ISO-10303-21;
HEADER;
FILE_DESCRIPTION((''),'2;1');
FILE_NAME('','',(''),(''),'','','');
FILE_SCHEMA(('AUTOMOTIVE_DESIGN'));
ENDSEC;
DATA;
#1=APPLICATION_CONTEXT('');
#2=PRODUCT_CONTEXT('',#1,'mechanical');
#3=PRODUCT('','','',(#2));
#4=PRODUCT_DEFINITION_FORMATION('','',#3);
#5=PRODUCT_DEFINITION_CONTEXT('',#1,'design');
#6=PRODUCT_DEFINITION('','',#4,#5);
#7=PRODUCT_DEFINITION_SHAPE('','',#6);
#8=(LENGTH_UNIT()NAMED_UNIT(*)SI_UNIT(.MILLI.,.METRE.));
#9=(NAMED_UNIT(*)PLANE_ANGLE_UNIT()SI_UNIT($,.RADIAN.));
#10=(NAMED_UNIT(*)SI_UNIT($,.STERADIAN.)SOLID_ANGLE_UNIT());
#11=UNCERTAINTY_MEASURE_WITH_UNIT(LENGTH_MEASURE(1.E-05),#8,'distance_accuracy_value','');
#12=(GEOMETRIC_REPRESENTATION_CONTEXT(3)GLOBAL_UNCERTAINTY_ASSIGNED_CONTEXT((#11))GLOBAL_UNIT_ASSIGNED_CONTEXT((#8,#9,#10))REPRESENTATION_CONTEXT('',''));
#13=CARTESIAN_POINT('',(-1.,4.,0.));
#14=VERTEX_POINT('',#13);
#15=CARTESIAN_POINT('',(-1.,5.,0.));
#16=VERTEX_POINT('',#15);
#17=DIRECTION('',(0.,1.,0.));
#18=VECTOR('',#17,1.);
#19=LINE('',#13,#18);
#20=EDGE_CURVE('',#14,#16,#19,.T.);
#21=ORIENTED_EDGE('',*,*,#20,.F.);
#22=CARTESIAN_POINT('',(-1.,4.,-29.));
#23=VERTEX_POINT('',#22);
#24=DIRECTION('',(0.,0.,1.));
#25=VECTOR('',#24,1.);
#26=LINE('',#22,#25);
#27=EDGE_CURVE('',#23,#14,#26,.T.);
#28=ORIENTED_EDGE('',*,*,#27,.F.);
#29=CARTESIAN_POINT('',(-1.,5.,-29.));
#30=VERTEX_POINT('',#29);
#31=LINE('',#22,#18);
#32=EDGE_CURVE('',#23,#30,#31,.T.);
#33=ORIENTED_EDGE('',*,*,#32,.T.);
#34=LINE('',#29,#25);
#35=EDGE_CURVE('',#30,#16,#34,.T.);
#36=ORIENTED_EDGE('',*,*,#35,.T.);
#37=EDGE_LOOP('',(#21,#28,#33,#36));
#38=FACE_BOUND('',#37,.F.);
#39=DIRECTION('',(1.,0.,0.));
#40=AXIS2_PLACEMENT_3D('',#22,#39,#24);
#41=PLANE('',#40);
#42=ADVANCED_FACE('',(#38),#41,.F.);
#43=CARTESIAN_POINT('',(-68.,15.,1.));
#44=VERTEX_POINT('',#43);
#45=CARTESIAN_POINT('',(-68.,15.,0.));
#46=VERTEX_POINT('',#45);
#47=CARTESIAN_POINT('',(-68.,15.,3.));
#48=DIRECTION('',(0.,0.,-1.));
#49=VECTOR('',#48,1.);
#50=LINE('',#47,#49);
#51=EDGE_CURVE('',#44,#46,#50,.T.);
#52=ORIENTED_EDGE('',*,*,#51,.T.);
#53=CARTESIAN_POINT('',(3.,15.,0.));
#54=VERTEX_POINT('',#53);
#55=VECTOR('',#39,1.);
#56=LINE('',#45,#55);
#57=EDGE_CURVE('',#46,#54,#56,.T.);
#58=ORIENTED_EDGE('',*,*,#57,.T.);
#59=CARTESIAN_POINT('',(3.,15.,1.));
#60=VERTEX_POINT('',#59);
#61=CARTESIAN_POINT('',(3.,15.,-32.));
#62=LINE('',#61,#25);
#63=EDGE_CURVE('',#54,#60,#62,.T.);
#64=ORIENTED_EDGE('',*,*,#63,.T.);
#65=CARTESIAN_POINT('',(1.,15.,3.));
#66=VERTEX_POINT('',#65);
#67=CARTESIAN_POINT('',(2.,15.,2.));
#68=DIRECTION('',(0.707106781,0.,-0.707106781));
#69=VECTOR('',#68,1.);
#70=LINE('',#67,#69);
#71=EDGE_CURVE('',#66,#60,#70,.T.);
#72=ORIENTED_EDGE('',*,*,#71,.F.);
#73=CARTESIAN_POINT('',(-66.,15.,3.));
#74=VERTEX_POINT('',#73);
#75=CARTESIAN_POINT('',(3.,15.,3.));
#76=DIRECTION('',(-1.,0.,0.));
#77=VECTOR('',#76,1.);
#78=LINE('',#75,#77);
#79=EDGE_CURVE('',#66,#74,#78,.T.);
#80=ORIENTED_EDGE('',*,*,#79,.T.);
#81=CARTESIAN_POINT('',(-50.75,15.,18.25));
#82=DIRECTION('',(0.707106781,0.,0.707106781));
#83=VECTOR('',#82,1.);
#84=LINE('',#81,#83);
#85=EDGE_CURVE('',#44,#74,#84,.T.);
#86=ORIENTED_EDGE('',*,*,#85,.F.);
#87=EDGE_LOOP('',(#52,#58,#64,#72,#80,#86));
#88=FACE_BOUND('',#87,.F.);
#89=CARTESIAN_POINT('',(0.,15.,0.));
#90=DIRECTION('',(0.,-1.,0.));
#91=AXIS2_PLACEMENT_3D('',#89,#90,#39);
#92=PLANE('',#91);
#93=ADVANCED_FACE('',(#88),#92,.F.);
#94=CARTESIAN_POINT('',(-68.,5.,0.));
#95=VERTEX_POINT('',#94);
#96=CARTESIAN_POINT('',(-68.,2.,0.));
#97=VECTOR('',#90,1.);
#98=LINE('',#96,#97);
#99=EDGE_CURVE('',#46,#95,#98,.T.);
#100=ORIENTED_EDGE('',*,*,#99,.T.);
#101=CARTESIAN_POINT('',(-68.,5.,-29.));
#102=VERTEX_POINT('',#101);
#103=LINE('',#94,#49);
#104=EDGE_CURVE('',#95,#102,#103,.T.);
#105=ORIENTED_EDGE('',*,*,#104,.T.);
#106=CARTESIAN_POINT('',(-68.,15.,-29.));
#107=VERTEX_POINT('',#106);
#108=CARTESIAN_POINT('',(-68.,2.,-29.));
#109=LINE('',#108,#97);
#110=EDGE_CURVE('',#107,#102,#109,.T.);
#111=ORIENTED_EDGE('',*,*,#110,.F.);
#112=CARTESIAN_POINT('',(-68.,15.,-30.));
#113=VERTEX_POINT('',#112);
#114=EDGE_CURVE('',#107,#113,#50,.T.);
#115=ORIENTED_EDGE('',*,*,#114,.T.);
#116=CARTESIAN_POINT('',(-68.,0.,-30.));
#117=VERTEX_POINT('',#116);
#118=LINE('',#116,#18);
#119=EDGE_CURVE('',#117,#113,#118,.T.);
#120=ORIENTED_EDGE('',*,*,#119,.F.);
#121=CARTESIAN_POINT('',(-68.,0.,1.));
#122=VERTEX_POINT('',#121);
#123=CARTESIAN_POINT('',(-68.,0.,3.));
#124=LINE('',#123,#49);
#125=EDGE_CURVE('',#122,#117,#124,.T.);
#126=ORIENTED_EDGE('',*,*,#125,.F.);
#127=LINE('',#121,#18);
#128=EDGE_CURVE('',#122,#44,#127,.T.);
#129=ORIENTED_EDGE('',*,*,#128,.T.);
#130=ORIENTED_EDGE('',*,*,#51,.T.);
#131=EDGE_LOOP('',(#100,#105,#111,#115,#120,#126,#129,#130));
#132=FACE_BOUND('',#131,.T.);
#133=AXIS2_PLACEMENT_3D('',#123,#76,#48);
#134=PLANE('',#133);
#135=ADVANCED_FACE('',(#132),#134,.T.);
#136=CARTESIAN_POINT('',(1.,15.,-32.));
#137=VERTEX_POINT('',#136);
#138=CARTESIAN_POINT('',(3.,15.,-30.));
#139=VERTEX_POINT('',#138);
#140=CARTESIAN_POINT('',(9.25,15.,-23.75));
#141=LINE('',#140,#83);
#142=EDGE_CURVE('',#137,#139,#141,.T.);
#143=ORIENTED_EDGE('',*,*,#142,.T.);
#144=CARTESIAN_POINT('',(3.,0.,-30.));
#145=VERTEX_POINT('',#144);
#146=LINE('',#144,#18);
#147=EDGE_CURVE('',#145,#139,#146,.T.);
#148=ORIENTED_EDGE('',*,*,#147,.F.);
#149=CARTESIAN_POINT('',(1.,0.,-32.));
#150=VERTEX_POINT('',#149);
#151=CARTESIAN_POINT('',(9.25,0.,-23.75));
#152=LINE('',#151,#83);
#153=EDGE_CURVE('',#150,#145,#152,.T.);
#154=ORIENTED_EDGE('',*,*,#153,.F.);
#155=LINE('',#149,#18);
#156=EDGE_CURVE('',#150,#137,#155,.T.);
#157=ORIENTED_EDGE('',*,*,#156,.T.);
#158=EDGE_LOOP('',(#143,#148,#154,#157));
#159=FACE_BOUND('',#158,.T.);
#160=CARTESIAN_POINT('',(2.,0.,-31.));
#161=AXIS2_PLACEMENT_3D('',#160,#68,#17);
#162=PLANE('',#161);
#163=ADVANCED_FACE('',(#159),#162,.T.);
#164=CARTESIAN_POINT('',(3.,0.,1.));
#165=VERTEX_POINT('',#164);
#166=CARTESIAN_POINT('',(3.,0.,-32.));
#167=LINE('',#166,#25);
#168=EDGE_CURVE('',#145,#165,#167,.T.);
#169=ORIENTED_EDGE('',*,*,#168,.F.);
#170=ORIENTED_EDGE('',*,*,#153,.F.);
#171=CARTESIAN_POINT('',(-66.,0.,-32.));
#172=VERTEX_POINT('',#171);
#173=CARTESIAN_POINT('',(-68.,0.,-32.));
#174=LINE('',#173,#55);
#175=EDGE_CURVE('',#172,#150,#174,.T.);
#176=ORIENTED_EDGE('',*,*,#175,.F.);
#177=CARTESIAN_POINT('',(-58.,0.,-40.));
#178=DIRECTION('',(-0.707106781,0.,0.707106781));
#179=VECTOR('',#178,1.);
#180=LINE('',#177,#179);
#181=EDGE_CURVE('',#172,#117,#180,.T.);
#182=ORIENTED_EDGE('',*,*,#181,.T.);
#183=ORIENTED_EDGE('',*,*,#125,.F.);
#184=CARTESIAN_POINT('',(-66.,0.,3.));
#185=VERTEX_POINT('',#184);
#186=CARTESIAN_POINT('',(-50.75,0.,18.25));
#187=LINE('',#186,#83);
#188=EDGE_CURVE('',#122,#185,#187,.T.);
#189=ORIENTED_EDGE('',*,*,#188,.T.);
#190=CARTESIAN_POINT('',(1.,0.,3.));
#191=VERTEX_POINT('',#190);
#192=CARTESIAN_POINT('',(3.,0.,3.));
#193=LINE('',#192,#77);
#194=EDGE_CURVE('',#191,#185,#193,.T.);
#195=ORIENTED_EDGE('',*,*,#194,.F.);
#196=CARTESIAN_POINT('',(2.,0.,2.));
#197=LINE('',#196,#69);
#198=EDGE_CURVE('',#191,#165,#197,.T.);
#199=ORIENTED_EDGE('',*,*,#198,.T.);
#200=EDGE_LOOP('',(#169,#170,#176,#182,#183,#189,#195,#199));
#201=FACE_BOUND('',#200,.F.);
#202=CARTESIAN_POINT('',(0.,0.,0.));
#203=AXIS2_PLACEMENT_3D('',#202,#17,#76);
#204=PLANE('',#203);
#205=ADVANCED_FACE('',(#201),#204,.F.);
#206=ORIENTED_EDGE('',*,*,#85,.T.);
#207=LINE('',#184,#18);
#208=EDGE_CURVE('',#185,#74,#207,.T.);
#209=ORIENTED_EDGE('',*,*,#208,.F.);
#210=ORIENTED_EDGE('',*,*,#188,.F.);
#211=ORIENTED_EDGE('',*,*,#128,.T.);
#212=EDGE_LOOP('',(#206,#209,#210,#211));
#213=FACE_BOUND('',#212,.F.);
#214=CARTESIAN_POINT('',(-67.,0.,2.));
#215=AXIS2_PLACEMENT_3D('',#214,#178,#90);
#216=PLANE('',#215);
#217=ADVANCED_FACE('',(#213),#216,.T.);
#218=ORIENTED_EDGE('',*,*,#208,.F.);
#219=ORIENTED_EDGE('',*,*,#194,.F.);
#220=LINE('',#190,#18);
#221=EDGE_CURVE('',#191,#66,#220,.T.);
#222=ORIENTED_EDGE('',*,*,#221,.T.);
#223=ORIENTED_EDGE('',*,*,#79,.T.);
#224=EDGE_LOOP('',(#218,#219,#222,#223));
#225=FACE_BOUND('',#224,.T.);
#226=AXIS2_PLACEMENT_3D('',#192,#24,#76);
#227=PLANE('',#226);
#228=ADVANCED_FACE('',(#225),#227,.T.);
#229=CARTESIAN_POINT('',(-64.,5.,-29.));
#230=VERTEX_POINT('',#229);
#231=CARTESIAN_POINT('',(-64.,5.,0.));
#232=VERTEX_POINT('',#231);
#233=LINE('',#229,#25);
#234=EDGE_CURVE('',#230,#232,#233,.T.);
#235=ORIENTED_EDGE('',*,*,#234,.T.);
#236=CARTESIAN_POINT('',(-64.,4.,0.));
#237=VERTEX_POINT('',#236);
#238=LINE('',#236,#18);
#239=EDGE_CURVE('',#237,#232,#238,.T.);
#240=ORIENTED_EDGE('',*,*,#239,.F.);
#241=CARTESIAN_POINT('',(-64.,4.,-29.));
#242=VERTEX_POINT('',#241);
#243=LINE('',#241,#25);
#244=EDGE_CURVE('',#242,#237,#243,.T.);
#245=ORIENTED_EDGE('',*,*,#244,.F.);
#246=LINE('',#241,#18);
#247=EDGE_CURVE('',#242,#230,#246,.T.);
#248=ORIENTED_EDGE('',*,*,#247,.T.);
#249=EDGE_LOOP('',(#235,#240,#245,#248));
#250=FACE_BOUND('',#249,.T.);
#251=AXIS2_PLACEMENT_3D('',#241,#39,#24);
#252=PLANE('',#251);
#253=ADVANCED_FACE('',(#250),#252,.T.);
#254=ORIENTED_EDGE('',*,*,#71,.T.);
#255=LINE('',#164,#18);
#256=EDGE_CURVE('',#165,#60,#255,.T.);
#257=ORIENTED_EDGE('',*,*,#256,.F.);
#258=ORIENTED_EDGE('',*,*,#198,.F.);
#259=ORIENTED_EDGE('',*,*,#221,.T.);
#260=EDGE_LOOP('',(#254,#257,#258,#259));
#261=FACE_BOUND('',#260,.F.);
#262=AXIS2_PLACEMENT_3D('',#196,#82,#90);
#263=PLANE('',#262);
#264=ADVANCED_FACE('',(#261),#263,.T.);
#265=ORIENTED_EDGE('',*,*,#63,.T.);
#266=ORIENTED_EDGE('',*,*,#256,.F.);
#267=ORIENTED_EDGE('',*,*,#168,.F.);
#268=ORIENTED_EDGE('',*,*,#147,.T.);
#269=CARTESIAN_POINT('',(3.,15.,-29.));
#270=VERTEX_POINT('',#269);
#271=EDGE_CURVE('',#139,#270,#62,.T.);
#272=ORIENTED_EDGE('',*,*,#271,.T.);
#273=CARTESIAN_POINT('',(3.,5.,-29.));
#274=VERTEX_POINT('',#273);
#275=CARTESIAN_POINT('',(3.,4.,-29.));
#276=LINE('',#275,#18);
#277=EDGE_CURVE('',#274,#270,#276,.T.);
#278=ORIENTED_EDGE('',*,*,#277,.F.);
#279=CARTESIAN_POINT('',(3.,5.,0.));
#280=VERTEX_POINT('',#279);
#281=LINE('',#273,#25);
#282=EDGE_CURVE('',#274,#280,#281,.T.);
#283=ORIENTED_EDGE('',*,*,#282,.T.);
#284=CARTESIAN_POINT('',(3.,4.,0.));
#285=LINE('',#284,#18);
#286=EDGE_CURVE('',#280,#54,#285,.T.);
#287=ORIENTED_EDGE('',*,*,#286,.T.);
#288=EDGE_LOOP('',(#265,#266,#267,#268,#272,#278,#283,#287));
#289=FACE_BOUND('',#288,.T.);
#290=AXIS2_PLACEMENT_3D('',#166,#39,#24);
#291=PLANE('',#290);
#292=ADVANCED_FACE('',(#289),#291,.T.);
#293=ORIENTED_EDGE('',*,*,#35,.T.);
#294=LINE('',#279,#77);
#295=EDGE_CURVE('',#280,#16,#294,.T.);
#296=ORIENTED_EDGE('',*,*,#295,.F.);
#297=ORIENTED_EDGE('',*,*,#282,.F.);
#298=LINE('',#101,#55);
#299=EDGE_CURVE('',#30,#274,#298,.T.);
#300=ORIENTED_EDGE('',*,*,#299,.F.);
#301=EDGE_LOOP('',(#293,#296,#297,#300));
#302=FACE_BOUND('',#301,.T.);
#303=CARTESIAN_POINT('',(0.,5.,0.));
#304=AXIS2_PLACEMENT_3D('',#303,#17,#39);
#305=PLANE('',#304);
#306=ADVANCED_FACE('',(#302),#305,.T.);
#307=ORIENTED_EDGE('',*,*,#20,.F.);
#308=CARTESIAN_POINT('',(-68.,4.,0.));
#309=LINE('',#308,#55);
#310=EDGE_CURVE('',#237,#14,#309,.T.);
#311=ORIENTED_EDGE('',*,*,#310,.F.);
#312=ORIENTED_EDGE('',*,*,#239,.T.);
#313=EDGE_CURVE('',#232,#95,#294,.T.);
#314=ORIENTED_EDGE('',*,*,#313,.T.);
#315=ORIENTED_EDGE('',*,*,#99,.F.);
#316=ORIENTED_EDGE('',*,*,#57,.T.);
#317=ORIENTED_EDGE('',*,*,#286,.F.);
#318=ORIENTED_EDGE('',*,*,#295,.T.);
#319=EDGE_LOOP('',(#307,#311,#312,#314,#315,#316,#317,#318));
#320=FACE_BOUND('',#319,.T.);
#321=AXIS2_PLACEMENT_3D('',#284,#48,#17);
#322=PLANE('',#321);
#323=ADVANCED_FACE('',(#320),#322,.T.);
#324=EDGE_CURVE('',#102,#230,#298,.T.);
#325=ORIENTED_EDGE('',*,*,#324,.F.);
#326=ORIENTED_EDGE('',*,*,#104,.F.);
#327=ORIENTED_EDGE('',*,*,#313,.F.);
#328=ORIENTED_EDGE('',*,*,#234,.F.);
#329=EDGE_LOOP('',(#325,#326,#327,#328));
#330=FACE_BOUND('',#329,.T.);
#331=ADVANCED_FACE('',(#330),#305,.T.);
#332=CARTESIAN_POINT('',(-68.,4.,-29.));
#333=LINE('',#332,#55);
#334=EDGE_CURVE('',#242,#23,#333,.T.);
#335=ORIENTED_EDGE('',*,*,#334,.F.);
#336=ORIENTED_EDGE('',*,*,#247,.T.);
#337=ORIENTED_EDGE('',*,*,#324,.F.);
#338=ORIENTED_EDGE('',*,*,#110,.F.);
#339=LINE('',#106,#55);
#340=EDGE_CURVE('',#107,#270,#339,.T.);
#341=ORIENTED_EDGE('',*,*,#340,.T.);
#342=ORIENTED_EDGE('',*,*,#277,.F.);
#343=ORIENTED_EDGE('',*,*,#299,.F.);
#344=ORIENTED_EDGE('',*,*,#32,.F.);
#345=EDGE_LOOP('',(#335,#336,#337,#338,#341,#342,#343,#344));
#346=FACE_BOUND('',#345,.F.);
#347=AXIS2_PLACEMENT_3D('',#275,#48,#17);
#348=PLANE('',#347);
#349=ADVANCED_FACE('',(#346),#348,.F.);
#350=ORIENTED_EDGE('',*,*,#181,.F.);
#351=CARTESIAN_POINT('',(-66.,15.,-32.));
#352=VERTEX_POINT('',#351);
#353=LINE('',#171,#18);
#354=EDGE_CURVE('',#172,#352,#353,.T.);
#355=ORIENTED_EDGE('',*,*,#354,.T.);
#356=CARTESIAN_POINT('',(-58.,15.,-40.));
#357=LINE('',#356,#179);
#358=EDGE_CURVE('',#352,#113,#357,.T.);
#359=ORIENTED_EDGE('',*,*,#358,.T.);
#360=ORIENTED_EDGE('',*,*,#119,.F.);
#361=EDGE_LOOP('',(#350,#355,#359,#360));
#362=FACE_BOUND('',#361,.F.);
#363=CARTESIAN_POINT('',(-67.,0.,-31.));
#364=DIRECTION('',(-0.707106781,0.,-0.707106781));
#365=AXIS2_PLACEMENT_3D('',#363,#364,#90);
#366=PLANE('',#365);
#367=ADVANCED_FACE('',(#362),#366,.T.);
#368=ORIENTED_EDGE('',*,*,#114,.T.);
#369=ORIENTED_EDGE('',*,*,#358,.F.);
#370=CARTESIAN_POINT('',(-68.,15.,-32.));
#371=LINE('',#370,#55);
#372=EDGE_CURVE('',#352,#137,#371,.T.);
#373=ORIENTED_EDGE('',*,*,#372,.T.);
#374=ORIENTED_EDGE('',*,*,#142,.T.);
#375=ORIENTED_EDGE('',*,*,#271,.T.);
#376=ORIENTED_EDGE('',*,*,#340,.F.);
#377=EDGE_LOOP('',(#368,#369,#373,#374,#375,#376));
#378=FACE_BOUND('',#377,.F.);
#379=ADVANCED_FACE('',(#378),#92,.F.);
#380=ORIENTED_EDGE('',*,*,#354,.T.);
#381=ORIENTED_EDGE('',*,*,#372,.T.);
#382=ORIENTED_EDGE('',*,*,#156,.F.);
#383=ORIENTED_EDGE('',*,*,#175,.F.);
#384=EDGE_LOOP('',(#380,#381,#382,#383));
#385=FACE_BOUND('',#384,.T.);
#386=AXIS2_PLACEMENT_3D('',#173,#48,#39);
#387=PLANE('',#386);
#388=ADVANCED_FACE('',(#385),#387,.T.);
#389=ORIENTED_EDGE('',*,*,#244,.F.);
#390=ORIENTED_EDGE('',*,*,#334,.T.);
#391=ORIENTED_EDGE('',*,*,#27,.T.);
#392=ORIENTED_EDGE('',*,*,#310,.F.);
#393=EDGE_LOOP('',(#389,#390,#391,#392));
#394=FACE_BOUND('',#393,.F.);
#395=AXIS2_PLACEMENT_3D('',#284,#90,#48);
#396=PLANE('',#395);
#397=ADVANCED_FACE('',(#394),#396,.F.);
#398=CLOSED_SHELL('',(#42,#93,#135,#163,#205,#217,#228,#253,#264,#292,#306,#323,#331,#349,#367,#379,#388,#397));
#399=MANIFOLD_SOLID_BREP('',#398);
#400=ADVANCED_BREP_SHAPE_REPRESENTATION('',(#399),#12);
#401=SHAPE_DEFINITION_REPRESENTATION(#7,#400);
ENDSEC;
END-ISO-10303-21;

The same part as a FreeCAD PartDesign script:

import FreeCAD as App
import Part
import Sketcher

V = App.Vector


def edges_at(feature, points):
    """Names of the edges that pass closest to the given points."""
    edges = feature.Shape.Edges
    near = lambda p: min(range(len(edges)), key=lambda i: edges[i].distToShape(Part.Vertex(*p))[0])
    return sorted({f"Edge{near(p) + 1}" for p in points})

doc = App.newDocument("Part")
body = doc.addObject("PartDesign::Body", "Body")

# Sketch on XZ plane
sketch1 = body.newObject("Sketcher::SketchObject", "Sketch")
sketch1.AttachmentSupport = (doc.getObject("XZ_Plane"), [""])
sketch1.MapMode = "FlatFace"
sketch1.addGeometry(Part.LineSegment(V(-65, 0, 0), V(0, 0, 0)), False)
sketch1.addGeometry(Part.LineSegment(V(0, 0, 0), V(0, -29, 0)), False)
sketch1.addGeometry(Part.LineSegment(V(0, -29, 0), V(-65, -29, 0)), False)
sketch1.addGeometry(Part.LineSegment(V(-65, -29, 0), V(-65, 0, 0)), False)
sketch1.addConstraint(Sketcher.Constraint("Coincident", 0, 2, 1, 1))
sketch1.addConstraint(Sketcher.Constraint("Coincident", 1, 2, 2, 1))
sketch1.addConstraint(Sketcher.Constraint("Coincident", 2, 2, 3, 1))
sketch1.addConstraint(Sketcher.Constraint("Coincident", 3, 2, 0, 1))
sketch1.addConstraint(Sketcher.Constraint("Horizontal", 0))
sketch1.addConstraint(Sketcher.Constraint("Vertical", 1))
sketch1.addConstraint(Sketcher.Constraint("Horizontal", 2))
sketch1.addConstraint(Sketcher.Constraint("Vertical", 3))
sketch1.addConstraint(Sketcher.Constraint("Coincident", 0, 2, -1, 1))
sketch1.addConstraint(Sketcher.Constraint("DistanceX", 0, 1, 0, 2, 65.0))
sketch1.addConstraint(Sketcher.Constraint("DistanceY", 1, 2, 1, 1, 29.0))
pad1 = body.newObject("PartDesign::Pad", "Pad")
pad1.Profile = sketch1
pad1.Length = 4
pad1.Reversed = True

# Sketch on XZ plane
sketch2 = body.newObject("Sketcher::SketchObject", "Sketch001")
sketch2.AttachmentSupport = (doc.getObject("XZ_Plane"), [""])
sketch2.MapMode = "FlatFace"
sketch2.addGeometry(Part.LineSegment(V(-68, -32, 0), V(3, -32, 0)), False)
sketch2.addGeometry(Part.LineSegment(V(3, -32, 0), V(3, 3, 0)), False)
sketch2.addGeometry(Part.LineSegment(V(3, 3, 0), V(-68, 3, 0)), False)
sketch2.addGeometry(Part.LineSegment(V(-68, 3, 0), V(-68, -32, 0)), False)
sketch2.addGeometry(Part.LineSegment(V(-65, 0, 0), V(0, 0, 0)), False)
sketch2.addGeometry(Part.LineSegment(V(0, 0, 0), V(0, -29, 0)), False)
sketch2.addGeometry(Part.LineSegment(V(0, -29, 0), V(-65, -29, 0)), False)
sketch2.addGeometry(Part.LineSegment(V(-65, -29, 0), V(-65, 0, 0)), False)
sketch2.addConstraint(Sketcher.Constraint("Coincident", 0, 2, 1, 1))
sketch2.addConstraint(Sketcher.Constraint("Coincident", 1, 2, 2, 1))
sketch2.addConstraint(Sketcher.Constraint("Coincident", 2, 2, 3, 1))
sketch2.addConstraint(Sketcher.Constraint("Coincident", 3, 2, 0, 1))
sketch2.addConstraint(Sketcher.Constraint("Coincident", 4, 2, 5, 1))
sketch2.addConstraint(Sketcher.Constraint("Coincident", 5, 2, 6, 1))
sketch2.addConstraint(Sketcher.Constraint("Coincident", 6, 2, 7, 1))
sketch2.addConstraint(Sketcher.Constraint("Coincident", 7, 2, 4, 1))
sketch2.addConstraint(Sketcher.Constraint("Horizontal", 0))
sketch2.addConstraint(Sketcher.Constraint("Vertical", 1))
sketch2.addConstraint(Sketcher.Constraint("Horizontal", 2))
sketch2.addConstraint(Sketcher.Constraint("Vertical", 3))
sketch2.addConstraint(Sketcher.Constraint("Horizontal", 4))
sketch2.addConstraint(Sketcher.Constraint("Vertical", 5))
sketch2.addConstraint(Sketcher.Constraint("Horizontal", 6))
sketch2.addConstraint(Sketcher.Constraint("Vertical", 7))
sketch2.addConstraint(Sketcher.Constraint("Coincident", 4, 2, -1, 1))
sketch2.addConstraint(Sketcher.Constraint("DistanceX", -1, 1, 0, 2, 3.0))
sketch2.addConstraint(Sketcher.Constraint("DistanceY", -1, 1, 1, 2, 3.0))
sketch2.addConstraint(Sketcher.Constraint("DistanceY", 0, 2, 5, 2, 3.0))
sketch2.addConstraint(Sketcher.Constraint("DistanceX", 3, 2, 6, 2, 3.0))
sketch2.addConstraint(Sketcher.Constraint("DistanceX", 0, 1, 0, 2, 71.0))
sketch2.addConstraint(Sketcher.Constraint("DistanceY", 1, 1, 1, 2, 35.0))
pad2 = body.newObject("PartDesign::Pad", "Pad001")
pad2.Profile = sketch2
pad2.Length = 15
pad2.Reversed = True

# Sketch on YZ plane
sketch3 = body.newObject("Sketcher::SketchObject", "Sketch002")
sketch3.AttachmentSupport = (doc.getObject("YZ_Plane"), [""])
sketch3.MapMode = "FlatFace"
sketch3.AttachmentOffset = App.Placement(V(0, 0, 3), App.Rotation())
sketch3.addGeometry(Part.LineSegment(V(15, 0, 0), V(4, 0, 0)), False)
sketch3.addGeometry(Part.LineSegment(V(4, 0, 0), V(4, -29, 0)), False)
sketch3.addGeometry(Part.LineSegment(V(4, -29, 0), V(15, -29, 0)), False)
sketch3.addGeometry(Part.LineSegment(V(15, -29, 0), V(15, 0, 0)), False)
sketch3.addConstraint(Sketcher.Constraint("Coincident", 0, 2, 1, 1))
sketch3.addConstraint(Sketcher.Constraint("Coincident", 1, 2, 2, 1))
sketch3.addConstraint(Sketcher.Constraint("Coincident", 2, 2, 3, 1))
sketch3.addConstraint(Sketcher.Constraint("Coincident", 3, 2, 0, 1))
sketch3.addConstraint(Sketcher.Constraint("Horizontal", 0))
sketch3.addConstraint(Sketcher.Constraint("Vertical", 1))
sketch3.addConstraint(Sketcher.Constraint("Horizontal", 2))
sketch3.addConstraint(Sketcher.Constraint("Vertical", 3))
sketch3.addConstraint(Sketcher.Constraint("PointOnObject", 0, 2, -1))
sketch3.addConstraint(Sketcher.Constraint("DistanceX", 0, 2, 0, 1, 11.0))
sketch3.addConstraint(Sketcher.Constraint("DistanceY", 1, 2, 1, 1, 29.0))
sketch3.addConstraint(Sketcher.Constraint("DistanceX", -1, 1, 0, 2, 4.0))
pocket1 = body.newObject("PartDesign::Pocket", "Pocket")
pocket1.Profile = sketch3
pocket1.Length = 72.15
doc.recompute()

chamfer = body.newObject("PartDesign::Chamfer", "Chamfer")
chamfer.Base = (pocket1, edges_at(pocket1, [
    (3, 7.5, 3),
    (-68, 7.5, 3),
    (-68, 7.5, -32),
    (3, 7.5, -32),
]))
chamfer.Size = 2

# Sketch on XZ plane
sketch4 = body.newObject("Sketcher::SketchObject", "Sketch003")
sketch4.AttachmentSupport = (doc.getObject("XZ_Plane"), [""])
sketch4.MapMode = "FlatFace"
sketch4.AttachmentOffset = App.Placement(V(0, 0, -4), App.Rotation())
sketch4.addGeometry(Part.LineSegment(V(-68, -29, 0), V(-68, 0, 0)), False)
sketch4.addGeometry(Part.LineSegment(V(-68, 0, 0), V(-64, 0, 0)), False)
sketch4.addGeometry(Part.LineSegment(V(-64, 0, 0), V(-64, -29, 0)), False)
sketch4.addGeometry(Part.LineSegment(V(-64, -29, 0), V(-68, -29, 0)), False)
sketch4.addGeometry(Part.LineSegment(V(-1, -29, 0), V(-1, 0, 0)), False)
sketch4.addGeometry(Part.LineSegment(V(-1, 0, 0), V(3, 0, 0)), False)
sketch4.addGeometry(Part.LineSegment(V(3, 0, 0), V(3, -29, 0)), False)
sketch4.addGeometry(Part.LineSegment(V(3, -29, 0), V(-1, -29, 0)), False)
sketch4.addConstraint(Sketcher.Constraint("Coincident", 0, 2, 1, 1))
sketch4.addConstraint(Sketcher.Constraint("Coincident", 1, 2, 2, 1))
sketch4.addConstraint(Sketcher.Constraint("Coincident", 2, 2, 3, 1))
sketch4.addConstraint(Sketcher.Constraint("Coincident", 3, 2, 0, 1))
sketch4.addConstraint(Sketcher.Constraint("Coincident", 4, 2, 5, 1))
sketch4.addConstraint(Sketcher.Constraint("Coincident", 5, 2, 6, 1))
sketch4.addConstraint(Sketcher.Constraint("Coincident", 6, 2, 7, 1))
sketch4.addConstraint(Sketcher.Constraint("Coincident", 7, 2, 4, 1))
sketch4.addConstraint(Sketcher.Constraint("Vertical", 0))
sketch4.addConstraint(Sketcher.Constraint("Horizontal", 1))
sketch4.addConstraint(Sketcher.Constraint("Vertical", 2))
sketch4.addConstraint(Sketcher.Constraint("Horizontal", 3))
sketch4.addConstraint(Sketcher.Constraint("Vertical", 4))
sketch4.addConstraint(Sketcher.Constraint("Horizontal", 5))
sketch4.addConstraint(Sketcher.Constraint("Vertical", 6))
sketch4.addConstraint(Sketcher.Constraint("Horizontal", 7))
sketch4.addConstraint(Sketcher.Constraint("PointOnObject", 0, 2, -1))
sketch4.addConstraint(Sketcher.Constraint("PointOnObject", 4, 2, -1))
sketch4.addConstraint(Sketcher.Constraint("Horizontal", 3, 2, 6, 2))
sketch4.addConstraint(Sketcher.Constraint("Equal", 3, 5))
sketch4.addConstraint(Sketcher.Constraint("DistanceX", 1, 1, 1, 2, 4.0))
sketch4.addConstraint(Sketcher.Constraint("DistanceY", 0, 1, 0, 2, 29.0))
sketch4.addConstraint(Sketcher.Constraint("DistanceX", 0, 2, -1, 1, 68.0))
sketch4.addConstraint(Sketcher.Constraint("DistanceX", 4, 2, -1, 1, 1.0))
pad3 = body.newObject("PartDesign::Pad", "Pad002")
pad3.Profile = sketch4
pad3.Length = 1
pad3.Reversed = True

doc.recompute()
